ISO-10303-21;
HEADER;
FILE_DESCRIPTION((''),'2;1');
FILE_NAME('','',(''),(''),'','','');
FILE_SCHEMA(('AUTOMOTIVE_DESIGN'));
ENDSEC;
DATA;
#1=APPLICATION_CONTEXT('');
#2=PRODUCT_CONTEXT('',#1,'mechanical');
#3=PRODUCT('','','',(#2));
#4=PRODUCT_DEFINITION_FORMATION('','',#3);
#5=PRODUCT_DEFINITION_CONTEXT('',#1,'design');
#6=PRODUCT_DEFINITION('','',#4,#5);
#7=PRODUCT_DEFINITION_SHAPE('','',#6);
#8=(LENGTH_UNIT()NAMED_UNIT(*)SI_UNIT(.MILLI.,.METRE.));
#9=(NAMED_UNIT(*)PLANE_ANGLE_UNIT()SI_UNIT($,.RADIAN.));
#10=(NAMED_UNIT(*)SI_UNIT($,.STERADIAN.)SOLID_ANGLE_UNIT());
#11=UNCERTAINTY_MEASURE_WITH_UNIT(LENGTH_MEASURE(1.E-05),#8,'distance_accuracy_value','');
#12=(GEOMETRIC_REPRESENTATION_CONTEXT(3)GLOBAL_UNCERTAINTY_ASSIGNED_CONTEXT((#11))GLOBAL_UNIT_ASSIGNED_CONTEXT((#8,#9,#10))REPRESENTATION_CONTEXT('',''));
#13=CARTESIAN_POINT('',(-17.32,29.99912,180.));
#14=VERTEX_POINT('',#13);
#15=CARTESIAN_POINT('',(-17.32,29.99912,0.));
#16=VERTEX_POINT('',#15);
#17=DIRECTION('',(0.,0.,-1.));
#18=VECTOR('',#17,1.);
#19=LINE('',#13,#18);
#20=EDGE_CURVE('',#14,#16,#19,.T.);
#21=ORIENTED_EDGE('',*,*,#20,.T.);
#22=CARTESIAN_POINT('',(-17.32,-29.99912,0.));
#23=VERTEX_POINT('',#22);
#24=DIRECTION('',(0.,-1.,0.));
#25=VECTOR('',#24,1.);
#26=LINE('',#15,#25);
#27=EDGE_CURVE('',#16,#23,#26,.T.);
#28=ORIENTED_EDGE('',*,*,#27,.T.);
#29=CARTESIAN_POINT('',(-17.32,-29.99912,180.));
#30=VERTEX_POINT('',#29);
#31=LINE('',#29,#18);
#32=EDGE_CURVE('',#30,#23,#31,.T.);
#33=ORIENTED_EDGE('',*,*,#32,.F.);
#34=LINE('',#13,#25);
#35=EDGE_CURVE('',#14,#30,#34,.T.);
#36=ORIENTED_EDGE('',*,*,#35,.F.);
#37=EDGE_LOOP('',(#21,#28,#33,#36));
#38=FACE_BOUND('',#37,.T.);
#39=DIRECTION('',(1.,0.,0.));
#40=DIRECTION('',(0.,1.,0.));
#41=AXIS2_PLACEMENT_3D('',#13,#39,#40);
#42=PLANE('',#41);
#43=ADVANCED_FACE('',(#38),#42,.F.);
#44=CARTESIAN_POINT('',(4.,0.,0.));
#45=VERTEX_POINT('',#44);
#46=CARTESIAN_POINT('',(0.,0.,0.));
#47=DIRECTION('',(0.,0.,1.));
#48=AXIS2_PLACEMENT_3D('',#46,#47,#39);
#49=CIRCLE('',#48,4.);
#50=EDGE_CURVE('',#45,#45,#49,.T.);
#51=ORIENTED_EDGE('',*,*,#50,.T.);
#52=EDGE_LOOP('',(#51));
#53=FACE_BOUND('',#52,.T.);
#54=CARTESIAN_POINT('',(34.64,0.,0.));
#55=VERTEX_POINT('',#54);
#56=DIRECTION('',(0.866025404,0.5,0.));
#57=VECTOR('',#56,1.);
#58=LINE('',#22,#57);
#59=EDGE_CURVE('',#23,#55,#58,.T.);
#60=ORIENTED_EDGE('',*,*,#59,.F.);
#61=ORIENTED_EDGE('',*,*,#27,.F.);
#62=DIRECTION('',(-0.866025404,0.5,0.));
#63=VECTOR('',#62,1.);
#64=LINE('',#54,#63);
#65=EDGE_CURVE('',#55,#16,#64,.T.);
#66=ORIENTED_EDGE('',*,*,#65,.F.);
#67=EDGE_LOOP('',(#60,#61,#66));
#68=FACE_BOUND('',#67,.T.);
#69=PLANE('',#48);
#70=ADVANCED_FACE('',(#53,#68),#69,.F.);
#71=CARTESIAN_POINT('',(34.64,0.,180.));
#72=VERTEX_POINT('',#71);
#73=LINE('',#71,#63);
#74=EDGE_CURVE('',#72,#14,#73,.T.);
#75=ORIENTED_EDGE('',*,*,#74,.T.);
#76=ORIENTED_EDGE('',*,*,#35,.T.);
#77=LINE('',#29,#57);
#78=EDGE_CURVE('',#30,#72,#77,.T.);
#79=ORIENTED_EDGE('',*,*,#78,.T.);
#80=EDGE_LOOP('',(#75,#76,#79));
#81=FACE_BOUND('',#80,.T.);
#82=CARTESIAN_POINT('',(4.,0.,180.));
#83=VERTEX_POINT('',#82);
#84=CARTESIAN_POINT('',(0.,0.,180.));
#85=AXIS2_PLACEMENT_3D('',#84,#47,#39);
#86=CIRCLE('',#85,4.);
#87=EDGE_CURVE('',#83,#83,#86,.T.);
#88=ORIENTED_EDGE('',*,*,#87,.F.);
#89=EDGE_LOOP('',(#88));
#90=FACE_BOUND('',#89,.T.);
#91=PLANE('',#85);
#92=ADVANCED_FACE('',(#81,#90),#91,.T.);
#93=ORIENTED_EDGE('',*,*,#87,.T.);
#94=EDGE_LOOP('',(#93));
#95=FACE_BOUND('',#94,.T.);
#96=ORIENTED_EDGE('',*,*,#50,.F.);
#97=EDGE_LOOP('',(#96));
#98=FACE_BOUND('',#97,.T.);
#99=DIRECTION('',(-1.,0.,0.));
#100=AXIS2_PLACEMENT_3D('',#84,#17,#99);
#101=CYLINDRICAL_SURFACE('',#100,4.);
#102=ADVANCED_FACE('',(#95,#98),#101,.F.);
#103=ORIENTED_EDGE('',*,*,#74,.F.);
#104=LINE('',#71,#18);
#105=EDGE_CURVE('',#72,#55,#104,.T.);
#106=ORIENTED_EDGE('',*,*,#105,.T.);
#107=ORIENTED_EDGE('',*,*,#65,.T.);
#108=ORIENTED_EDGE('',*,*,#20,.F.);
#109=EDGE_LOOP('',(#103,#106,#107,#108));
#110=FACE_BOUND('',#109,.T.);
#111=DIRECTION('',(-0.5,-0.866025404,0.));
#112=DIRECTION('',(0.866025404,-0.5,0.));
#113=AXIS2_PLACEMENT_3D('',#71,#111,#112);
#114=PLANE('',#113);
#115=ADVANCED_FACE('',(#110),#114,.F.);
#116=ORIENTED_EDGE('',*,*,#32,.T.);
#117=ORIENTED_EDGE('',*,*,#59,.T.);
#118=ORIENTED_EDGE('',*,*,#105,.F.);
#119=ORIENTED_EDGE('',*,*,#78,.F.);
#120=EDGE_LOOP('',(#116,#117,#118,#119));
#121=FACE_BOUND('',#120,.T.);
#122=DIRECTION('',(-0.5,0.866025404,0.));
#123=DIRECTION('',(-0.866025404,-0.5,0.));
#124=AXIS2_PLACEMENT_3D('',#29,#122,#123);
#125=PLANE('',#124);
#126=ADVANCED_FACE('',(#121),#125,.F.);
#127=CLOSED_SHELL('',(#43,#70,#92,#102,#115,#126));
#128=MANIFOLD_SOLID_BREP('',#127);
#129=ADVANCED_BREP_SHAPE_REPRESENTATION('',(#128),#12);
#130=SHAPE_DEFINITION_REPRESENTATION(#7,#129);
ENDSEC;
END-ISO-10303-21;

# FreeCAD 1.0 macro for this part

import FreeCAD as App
import Part
import Sketcher
from FreeCAD import Vector
Q = App.Units.Quantity


def add_polygon(sketch, points):
    """Adds a closed chain of lines whose ends are joined by coincident constraints."""
    first, n = sketch.GeometryCount, len(points)
    for a, b in zip(points, points[1:] + points[:1]):
        sketch.addGeometry(Part.LineSegment(App.Vector(*a, 0), App.Vector(*b, 0)), False)
    for i in range(n):
        sketch.addConstraint(Sketcher.Constraint("Coincident", first + i, 2, first + (i + 1) % n, 1))

doc = App.newDocument("Part")
body = doc.addObject("PartDesign::Body", "Body")

# Sketch on XY plane
sketch1 = body.newObject("Sketcher::SketchObject", "Sketch")
sketch1.AttachmentSupport = (doc.getObject("XY_Plane"), [""])
sketch1.MapMode = "FlatFace"
add_polygon(sketch1, [(34.64, 0), (-17.32, 29.99912), (-17.32, -29.99912)])  # lines 0-2
sketch1.addGeometry(Part.Circle(Vector(0, 0, 0), Vector(0, 0, 1), 4), False)  # 3
sketch1.addConstraint([
    Sketcher.Constraint("Vertical", 1),
    Sketcher.Constraint("Coincident", 3, 3, -1, 1),
    Sketcher.Constraint("PointOnObject", 2, 2, -1),
    Sketcher.Constraint("Equal", 0, 2),
    Sketcher.Constraint("Diameter", 3, 8.0),
    Sketcher.Constraint("Angle", 0, Q("150 deg")),
    Sketcher.Constraint("DistanceX", 0, 2, -1, 1, 17.32),
    Sketcher.Constraint("DistanceX", -1, 1, 2, 2, 34.64),
])
pad1 = body.newObject("PartDesign::Pad", "Pad")
pad1.Profile = sketch1
pad1.Length = 180

doc.recompute()
